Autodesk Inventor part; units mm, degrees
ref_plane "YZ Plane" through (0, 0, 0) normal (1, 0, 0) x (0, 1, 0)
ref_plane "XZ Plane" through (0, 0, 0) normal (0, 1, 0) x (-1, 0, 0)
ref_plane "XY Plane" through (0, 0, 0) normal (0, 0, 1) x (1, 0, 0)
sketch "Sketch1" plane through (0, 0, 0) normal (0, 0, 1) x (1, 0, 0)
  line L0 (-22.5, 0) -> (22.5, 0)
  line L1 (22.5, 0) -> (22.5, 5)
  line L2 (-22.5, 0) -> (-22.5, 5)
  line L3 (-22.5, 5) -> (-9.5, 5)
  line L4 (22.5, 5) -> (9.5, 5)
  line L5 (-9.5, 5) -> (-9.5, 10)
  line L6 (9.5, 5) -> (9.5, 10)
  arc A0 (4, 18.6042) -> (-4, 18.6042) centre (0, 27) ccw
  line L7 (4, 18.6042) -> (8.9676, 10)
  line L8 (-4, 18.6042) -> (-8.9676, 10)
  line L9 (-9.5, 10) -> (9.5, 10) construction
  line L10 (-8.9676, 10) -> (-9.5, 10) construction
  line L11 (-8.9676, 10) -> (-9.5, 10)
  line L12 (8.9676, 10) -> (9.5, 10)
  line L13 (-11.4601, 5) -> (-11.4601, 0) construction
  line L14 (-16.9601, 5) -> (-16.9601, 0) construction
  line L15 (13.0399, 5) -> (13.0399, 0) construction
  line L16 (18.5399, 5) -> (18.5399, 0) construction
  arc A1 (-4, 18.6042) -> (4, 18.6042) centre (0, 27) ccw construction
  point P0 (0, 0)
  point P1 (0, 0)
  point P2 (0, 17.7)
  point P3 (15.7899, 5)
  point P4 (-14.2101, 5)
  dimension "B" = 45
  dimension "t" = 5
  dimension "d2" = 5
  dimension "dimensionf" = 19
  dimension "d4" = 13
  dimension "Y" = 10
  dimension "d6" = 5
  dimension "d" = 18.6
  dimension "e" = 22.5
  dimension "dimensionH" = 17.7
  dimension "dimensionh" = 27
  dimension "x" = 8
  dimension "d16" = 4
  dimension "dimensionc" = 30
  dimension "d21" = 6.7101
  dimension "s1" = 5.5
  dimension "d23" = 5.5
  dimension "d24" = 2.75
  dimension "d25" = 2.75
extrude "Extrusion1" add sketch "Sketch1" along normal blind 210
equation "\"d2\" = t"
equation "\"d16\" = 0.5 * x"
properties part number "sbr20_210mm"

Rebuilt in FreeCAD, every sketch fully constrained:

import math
import FreeCAD as App
import Part
import Sketcher
Q = App.Units.Quantity

doc = App.newDocument("Part")
params = doc.addObject("Spreadsheet::Sheet", "Params")
for row, (alias, value) in enumerate([
    ("sketch1_radius", "9.3 mm"),
    ("sketch1_width", "45 mm"),
    ("sketch1_width2", "13 mm"),
    ("sketch1_height", "5 mm"),
    ("pad1_length", "210 mm"),
], start=1):
    params.set(f"A{row}", alias)
    params.set(f"B{row}", "=" + value)
    params.setAlias(f"B{row}", alias)

body = doc.addObject("PartDesign::Body", "Body")

sketch1 = body.newObject("Sketcher::SketchObject", "Sketch")
sketch1.AttachmentSupport = (doc.getObject("XY_Plane"), [""])
sketch1.MapMode = "FlatFace"
sketch1.addGeometry([
    Part.LineSegment(App.Vector(-22.5, 5, 0), App.Vector(-22.5, 0, 0)),
    Part.LineSegment(App.Vector(-22.5, 0, 0), App.Vector(22.5, 0, 0)),
    Part.LineSegment(App.Vector(22.5, 0, 0), App.Vector(22.5, 5, 0)),
    Part.LineSegment(App.Vector(22.5, 5, 0), App.Vector(9.5, 5, 0)),
    Part.LineSegment(App.Vector(9.5, 5, 0), App.Vector(9.5, 10, 0)),
    Part.LineSegment(App.Vector(9.5, 10, 0), App.Vector(9, 10, 0)),
    Part.LineSegment(App.Vector(9, 10, 0), App.Vector(4, 18.6, 0)),
    Part.ArcOfCircle(Part.Circle(App.Vector(0, 27, 0), App.Vector(0, 0, 1), 9.3), math.radians(-65), math.radians(245)),
    Part.LineSegment(App.Vector(-4, 18.6, 0), App.Vector(-9, 10, 0)),
    Part.LineSegment(App.Vector(-9, 10, 0), App.Vector(-9.5, 10, 0)),
    Part.LineSegment(App.Vector(-9.5, 10, 0), App.Vector(-9.5, 5, 0)),
    Part.LineSegment(App.Vector(-9.5, 5, 0), App.Vector(-22.5, 5, 0)),
], False)
sketch1.addConstraint([
    Sketcher.Constraint("Coincident", 0, 2, 1, 1),
    Sketcher.Constraint("Coincident", 1, 2, 2, 1),
    Sketcher.Constraint("Coincident", 2, 2, 3, 1),
    Sketcher.Constraint("Coincident", 3, 2, 4, 1),
    Sketcher.Constraint("Coincident", 4, 2, 5, 1),
    Sketcher.Constraint("Coincident", 5, 2, 6, 1),
    Sketcher.Constraint("Coincident", 6, 2, 7, 1),
    Sketcher.Constraint("Coincident", 7, 2, 8, 1),
    Sketcher.Constraint("Coincident", 8, 2, 9, 1),
    Sketcher.Constraint("Coincident", 9, 2, 10, 1),
    Sketcher.Constraint("Coincident", 10, 2, 11, 1),
    Sketcher.Constraint("Coincident", 11, 2, 0, 1),
    Sketcher.Constraint("Vertical", 0),
    Sketcher.Constraint("Horizontal", 1),
    Sketcher.Constraint("Vertical", 2),
    Sketcher.Constraint("Horizontal", 3),
    Sketcher.Constraint("Vertical", 4),
    Sketcher.Constraint("Horizontal", 5),
    Sketcher.Constraint("Horizontal", 9),
    Sketcher.Constraint("Vertical", 10),
    Sketcher.Constraint("Horizontal", 11),
    Sketcher.Constraint("Symmetric", 0, 2, 1, 2, -1, 1),
    Sketcher.Constraint("Symmetric", 6, 2, 7, 2, -2),
    Sketcher.Constraint("Symmetric", 5, 2, 8, 2, -2),
    Sketcher.Constraint("Symmetric", 3, 2, 10, 2, -2),
    Sketcher.Constraint("Equal", 2, 4),
    Sketcher.Constraint("Radius", 7, 9.3),
    Sketcher.Constraint("DistanceX", 1, 1, 1, 2, 45.0),
    Sketcher.Constraint("DistanceX", 3, 2, 3, 1, 13.0),
    Sketcher.Constraint("DistanceY", 0, 2, 0, 1, 5.0),
    Sketcher.Constraint("DistanceY", -1, 1, 7, 3, 27.0),
    Sketcher.Constraint("DistanceX", -1, 1, 6, 2, 4.0),
    Sketcher.Constraint("Angle", 6, Q("119.9998 deg")),
])
sketch1.setExpression("Constraints[26]", "Params.sketch1_radius")
sketch1.setExpression("Constraints[27]", "Params.sketch1_width")
sketch1.setExpression("Constraints[28]", "Params.sketch1_width2")
sketch1.setExpression("Constraints[29]", "Params.sketch1_height")
pad1 = body.newObject("PartDesign::Pad", "Pad")
pad1.Profile = sketch1
pad1.setExpression("Length", "Params.pad1_length")

doc.recompute()
